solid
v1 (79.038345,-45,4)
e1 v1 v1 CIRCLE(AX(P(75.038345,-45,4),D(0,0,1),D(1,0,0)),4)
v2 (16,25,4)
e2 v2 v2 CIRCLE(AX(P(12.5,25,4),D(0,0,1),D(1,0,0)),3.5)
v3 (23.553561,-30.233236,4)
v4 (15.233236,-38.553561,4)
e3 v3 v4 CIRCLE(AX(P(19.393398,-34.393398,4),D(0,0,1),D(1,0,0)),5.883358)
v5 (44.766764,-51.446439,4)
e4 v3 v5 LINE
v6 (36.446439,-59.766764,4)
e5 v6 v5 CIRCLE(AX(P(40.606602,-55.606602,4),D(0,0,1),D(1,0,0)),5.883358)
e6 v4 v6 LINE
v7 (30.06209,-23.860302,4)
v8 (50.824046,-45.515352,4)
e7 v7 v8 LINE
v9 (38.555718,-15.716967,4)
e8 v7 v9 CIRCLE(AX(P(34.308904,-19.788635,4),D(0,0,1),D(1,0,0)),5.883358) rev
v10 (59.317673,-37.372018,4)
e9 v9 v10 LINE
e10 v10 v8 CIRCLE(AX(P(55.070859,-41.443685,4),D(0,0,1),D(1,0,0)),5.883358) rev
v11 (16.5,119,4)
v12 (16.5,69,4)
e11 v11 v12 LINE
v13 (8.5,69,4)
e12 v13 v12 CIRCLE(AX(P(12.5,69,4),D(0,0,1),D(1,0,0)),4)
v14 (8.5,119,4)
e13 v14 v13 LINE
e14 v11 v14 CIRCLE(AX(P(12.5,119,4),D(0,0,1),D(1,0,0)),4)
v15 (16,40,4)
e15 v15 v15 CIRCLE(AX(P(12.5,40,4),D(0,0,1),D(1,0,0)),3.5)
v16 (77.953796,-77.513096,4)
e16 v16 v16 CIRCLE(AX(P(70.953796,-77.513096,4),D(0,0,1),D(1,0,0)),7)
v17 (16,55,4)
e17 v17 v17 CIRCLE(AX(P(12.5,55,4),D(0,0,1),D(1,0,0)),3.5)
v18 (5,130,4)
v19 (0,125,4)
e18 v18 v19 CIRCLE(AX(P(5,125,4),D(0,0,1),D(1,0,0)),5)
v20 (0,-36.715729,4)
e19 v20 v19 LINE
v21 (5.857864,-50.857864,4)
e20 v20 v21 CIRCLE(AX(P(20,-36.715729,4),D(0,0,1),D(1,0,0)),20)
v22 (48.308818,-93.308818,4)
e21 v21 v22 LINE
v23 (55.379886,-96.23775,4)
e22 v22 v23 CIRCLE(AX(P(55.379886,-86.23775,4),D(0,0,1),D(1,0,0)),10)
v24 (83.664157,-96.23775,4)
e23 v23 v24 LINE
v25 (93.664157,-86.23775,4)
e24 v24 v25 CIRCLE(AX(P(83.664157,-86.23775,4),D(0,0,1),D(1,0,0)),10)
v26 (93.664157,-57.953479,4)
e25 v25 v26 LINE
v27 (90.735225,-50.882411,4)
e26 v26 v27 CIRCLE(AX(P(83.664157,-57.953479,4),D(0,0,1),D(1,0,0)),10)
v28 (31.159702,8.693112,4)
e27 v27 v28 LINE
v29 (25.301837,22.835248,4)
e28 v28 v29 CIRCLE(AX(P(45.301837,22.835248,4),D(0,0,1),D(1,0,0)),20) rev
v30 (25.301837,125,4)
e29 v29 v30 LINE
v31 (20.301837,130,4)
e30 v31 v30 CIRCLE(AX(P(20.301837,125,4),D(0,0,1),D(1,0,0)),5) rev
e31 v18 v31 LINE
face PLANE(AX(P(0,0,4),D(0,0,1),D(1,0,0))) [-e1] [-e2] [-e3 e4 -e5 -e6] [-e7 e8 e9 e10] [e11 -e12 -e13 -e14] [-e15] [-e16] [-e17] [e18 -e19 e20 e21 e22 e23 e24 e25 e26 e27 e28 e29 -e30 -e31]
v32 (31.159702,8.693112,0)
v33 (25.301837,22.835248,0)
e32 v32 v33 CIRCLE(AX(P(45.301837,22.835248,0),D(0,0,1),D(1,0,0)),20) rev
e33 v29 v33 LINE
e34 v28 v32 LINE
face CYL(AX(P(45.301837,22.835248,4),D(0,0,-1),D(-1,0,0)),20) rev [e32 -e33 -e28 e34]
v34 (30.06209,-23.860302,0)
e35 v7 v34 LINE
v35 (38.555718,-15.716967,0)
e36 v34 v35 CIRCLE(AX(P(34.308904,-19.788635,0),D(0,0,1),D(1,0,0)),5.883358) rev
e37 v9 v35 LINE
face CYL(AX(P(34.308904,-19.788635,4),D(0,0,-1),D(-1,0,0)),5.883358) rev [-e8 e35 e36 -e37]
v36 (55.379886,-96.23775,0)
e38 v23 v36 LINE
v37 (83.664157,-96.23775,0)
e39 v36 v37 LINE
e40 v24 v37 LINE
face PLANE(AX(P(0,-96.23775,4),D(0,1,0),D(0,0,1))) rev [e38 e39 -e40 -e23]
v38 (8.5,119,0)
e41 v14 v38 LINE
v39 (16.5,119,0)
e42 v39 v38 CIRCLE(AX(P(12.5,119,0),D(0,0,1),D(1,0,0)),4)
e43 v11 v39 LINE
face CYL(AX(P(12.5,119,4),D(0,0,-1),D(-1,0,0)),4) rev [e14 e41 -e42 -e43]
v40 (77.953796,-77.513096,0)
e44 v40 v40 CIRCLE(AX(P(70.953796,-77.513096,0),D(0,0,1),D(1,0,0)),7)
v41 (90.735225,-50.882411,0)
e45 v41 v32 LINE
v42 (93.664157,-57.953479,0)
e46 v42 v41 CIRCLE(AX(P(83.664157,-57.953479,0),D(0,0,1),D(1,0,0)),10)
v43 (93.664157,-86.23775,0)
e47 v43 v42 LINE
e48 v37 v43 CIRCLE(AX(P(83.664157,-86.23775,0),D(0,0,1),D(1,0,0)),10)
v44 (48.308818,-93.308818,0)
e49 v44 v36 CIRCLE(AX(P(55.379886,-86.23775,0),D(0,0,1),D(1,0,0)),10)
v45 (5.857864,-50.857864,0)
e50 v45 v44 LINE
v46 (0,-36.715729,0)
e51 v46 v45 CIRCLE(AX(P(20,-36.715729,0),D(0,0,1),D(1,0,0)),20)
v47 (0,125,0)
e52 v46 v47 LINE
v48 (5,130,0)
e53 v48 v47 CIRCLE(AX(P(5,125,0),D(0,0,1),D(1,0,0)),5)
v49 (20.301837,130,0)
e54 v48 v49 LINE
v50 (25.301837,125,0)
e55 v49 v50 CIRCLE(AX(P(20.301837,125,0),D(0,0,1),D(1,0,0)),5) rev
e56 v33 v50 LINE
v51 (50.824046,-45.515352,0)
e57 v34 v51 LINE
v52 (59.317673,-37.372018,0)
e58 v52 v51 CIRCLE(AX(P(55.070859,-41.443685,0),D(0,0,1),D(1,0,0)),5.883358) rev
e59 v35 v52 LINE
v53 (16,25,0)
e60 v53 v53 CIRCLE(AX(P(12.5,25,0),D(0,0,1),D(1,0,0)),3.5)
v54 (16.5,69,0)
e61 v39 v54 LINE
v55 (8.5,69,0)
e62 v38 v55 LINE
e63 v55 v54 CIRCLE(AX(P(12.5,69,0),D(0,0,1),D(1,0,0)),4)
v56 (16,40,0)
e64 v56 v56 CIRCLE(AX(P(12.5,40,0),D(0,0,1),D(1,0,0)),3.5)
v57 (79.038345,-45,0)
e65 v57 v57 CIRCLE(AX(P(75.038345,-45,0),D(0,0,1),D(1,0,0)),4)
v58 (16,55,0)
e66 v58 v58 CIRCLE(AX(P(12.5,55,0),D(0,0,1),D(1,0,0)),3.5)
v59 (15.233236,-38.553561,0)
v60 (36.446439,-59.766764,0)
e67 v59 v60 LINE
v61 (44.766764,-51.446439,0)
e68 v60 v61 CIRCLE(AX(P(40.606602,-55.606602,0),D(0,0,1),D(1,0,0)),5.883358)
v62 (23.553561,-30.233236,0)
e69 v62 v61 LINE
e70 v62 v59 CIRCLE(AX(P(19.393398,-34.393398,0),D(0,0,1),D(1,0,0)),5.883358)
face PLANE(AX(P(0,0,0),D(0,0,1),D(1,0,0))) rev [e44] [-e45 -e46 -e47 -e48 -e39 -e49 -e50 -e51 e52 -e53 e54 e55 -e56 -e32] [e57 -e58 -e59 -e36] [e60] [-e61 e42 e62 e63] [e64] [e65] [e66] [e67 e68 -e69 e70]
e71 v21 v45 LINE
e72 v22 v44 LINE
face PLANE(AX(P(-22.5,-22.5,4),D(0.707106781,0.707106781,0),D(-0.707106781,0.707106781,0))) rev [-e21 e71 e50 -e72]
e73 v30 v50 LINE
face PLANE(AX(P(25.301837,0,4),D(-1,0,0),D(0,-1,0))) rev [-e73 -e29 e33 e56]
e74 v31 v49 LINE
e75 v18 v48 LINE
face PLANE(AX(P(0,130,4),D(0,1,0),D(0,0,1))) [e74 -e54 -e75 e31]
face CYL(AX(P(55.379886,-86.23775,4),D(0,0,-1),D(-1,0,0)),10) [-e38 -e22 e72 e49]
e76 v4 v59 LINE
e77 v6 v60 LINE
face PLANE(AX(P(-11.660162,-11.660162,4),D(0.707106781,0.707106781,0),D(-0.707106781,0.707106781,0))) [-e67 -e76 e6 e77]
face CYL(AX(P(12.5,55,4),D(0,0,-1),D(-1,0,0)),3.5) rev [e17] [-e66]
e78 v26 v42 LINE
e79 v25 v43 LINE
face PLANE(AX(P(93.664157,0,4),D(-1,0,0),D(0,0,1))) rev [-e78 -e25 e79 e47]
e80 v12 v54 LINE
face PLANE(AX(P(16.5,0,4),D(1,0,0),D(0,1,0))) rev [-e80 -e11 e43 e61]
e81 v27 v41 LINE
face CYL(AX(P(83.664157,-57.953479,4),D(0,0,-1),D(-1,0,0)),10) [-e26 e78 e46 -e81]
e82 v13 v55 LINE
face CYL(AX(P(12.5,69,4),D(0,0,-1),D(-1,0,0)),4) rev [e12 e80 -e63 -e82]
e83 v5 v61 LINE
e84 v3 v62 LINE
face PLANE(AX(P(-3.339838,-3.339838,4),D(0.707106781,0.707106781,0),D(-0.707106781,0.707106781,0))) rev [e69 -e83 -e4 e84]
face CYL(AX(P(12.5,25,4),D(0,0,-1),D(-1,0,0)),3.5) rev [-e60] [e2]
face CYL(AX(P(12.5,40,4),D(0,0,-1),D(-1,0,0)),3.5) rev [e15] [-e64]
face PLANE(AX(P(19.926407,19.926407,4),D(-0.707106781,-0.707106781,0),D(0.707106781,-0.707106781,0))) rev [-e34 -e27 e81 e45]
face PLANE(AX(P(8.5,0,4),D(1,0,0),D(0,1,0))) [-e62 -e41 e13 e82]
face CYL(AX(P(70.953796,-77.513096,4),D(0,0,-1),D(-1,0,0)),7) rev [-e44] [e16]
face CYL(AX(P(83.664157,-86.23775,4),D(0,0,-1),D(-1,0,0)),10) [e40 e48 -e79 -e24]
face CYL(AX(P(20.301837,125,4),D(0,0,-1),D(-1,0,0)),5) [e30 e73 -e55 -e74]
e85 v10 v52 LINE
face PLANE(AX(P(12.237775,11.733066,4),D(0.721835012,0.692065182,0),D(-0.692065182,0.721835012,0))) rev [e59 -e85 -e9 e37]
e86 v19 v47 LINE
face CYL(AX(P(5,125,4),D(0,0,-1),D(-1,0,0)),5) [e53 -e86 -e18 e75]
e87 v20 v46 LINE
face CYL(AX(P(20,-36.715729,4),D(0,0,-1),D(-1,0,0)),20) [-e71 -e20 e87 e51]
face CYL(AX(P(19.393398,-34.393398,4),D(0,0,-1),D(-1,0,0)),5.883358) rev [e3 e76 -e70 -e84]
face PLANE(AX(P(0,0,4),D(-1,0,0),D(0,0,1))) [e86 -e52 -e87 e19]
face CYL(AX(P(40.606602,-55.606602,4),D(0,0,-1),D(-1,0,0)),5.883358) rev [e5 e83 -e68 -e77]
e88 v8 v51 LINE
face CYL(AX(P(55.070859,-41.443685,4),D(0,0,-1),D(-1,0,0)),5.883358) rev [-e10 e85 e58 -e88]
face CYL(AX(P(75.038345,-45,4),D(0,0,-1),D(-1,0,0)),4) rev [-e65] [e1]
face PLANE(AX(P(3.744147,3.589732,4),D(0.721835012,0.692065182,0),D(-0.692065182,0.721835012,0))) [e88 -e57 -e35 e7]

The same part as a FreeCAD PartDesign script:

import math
import FreeCAD as App
import Part
import Sketcher

V = App.Vector
Q = App.Units.Quantity

doc = App.newDocument("Part")
body = doc.addObject("PartDesign::Body", "Body")

sketch1 = body.newObject("Sketcher::SketchObject", "Sketch")
sketch1.AttachmentSupport = (doc.getObject("XY_Plane"), [""])
sketch1.MapMode = "FlatFace"
sketch1.addGeometry([
    Part.LineSegment(V(55.4, -96.2, 0), V(83.7, -96.2, 0)),
    Part.ArcOfCircle(Part.Circle(V(83.7, -86.2, 0), V(0, 0, 1), 10), math.radians(-90), math.radians(0)),
    Part.LineSegment(V(93.7, -86.2, 0), V(93.7, -58, 0)),
    Part.ArcOfCircle(Part.Circle(V(83.7, -58, 0), V(0, 0, 1), 10), math.radians(0), math.radians(45)),
    Part.LineSegment(V(90.7, -50.9, 0), V(31.2, 8.7, 0)),
    Part.ArcOfCircle(Part.Circle(V(45.3, 22.8, 0), V(0, 0, 1), 20), math.radians(-180), math.radians(-135)),
    Part.LineSegment(V(25.3, 22.8, 0), V(25.3, 125, 0)),
    Part.ArcOfCircle(Part.Circle(V(20.3, 125, 0), V(0, 0, 1), 5), math.radians(0), math.radians(90)),
    Part.LineSegment(V(20.3, 130, 0), V(5, 130, 0)),
    Part.ArcOfCircle(Part.Circle(V(5, 125, 0), V(0, 0, 1), 5), math.radians(90), math.radians(180)),
    Part.LineSegment(V(0, 125, 0), V(0, -36.7, 0)),
    Part.ArcOfCircle(Part.Circle(V(20, -36.7, 0), V(0, 0, 1), 20), math.radians(-180), math.radians(-135)),
    Part.LineSegment(V(5.9, -50.9, 0), V(48.3, -93.3, 0)),
    Part.ArcOfCircle(Part.Circle(V(55.4, -86.2, 0), V(0, 0, 1), 10), math.radians(-135), math.radians(-90)),
    Part.ArcOfCircle(Part.Circle(V(40.6, -55.6, 0), V(0, 0, 1), 5.9), math.radians(-135), math.radians(45)),
    Part.LineSegment(V(36.4, -59.8, 0), V(15.2, -38.6, 0)),
    Part.ArcOfCircle(Part.Circle(V(19.4, -34.4, 0), V(0, 0, 1), 5.9), math.radians(45), math.radians(225)),
    Part.LineSegment(V(23.6, -30.2, 0), V(44.8, -51.4, 0)),
    Part.Circle(V(71, -77.5, 0), V(0, 0, 1), 7),
    Part.Circle(V(75, -45, 0), V(0, 0, 1), 4),
    Part.ArcOfCircle(Part.Circle(V(34.3, -19.8, 0), V(0, 0, 1), 5.9), math.radians(44), math.radians(224)),
    Part.LineSegment(V(38.6, -15.7, 0), V(59.3, -37.4, 0)),
    Part.ArcOfCircle(Part.Circle(V(55.1, -41.4, 0), V(0, 0, 1), 5.9), math.radians(-136), math.radians(44)),
    Part.LineSegment(V(50.8, -45.5, 0), V(30.1, -23.9, 0)),
    Part.Circle(V(12.5, 25, 0), V(0, 0, 1), 3.5),
    Part.Circle(V(12.5, 40, 0), V(0, 0, 1), 3.5),
    Part.Circle(V(12.5, 55, 0), V(0, 0, 1), 3.5),
    Part.ArcOfCircle(Part.Circle(V(12.5, 69, 0), V(0, 0, 1), 4), math.radians(180), math.radians(360)),
    Part.LineSegment(V(8.5, 69, 0), V(8.5, 119, 0)),
    Part.ArcOfCircle(Part.Circle(V(12.5, 119, 0), V(0, 0, 1), 4), math.radians(0), math.radians(180)),
    Part.LineSegment(V(16.5, 119, 0), V(16.5, 69, 0)),
], False)
sketch1.addConstraint([
    Sketcher.Constraint("Tangent", 0, 2, 1, 1),
    Sketcher.Constraint("Tangent", 1, 2, 2, 1),
    Sketcher.Constraint("Tangent", 2, 2, 3, 1),
    Sketcher.Constraint("Tangent", 3, 2, 4, 1),
    Sketcher.Constraint("Tangent", 4, 2, 5, 2),
    Sketcher.Constraint("Tangent", 5, 1, 6, 1),
    Sketcher.Constraint("Tangent", 6, 2, 7, 1),
    Sketcher.Constraint("Tangent", 7, 2, 8, 1),
    Sketcher.Constraint("Tangent", 8, 2, 9, 1),
    Sketcher.Constraint("Tangent", 9, 2, 10, 1),
    Sketcher.Constraint("Tangent", 10, 2, 11, 1),
    Sketcher.Constraint("Tangent", 11, 2, 12, 1),
    Sketcher.Constraint("Tangent", 12, 2, 13, 1),
    Sketcher.Constraint("Tangent", 13, 2, 0, 1),
    Sketcher.Constraint("Tangent", 14, 1, 15, 1),
    Sketcher.Constraint("Tangent", 15, 2, 16, 2),
    Sketcher.Constraint("Tangent", 16, 1, 17, 1),
    Sketcher.Constraint("Tangent", 17, 2, 14, 2),
    Sketcher.Constraint("Tangent", 20, 1, 21, 1),
    Sketcher.Constraint("Tangent", 21, 2, 22, 2),
    Sketcher.Constraint("Tangent", 22, 1, 23, 1),
    Sketcher.Constraint("Tangent", 23, 2, 20, 2),
    Sketcher.Constraint("Tangent", 27, 1, 28, 1),
    Sketcher.Constraint("Tangent", 28, 2, 29, 2),
    Sketcher.Constraint("Tangent", 29, 1, 30, 1),
    Sketcher.Constraint("Tangent", 30, 2, 27, 2),
    Sketcher.Constraint("Horizontal", 0),
    Sketcher.Constraint("Vertical", 2),
    Sketcher.Constraint("Vertical", 6),
    Sketcher.Constraint("Horizontal", 8),
    Sketcher.Constraint("Vertical", 10),
    Sketcher.Constraint("Vertical", 28),
    Sketcher.Constraint("Vertical", 30),
    Sketcher.Constraint("Equal", 1, 3),
    Sketcher.Constraint("Equal", 7, 9),
    Sketcher.Constraint("Equal", 5, 11),
    Sketcher.Constraint("Equal", 3, 13),
    Sketcher.Constraint("Equal", 14, 16),
    Sketcher.Constraint("Equal", 16, 20),
    Sketcher.Constraint("Equal", 20, 22),
    Sketcher.Constraint("Equal", 24, 25),
    Sketcher.Constraint("Equal", 25, 26),
    Sketcher.Constraint("Equal", 19, 27),
    Sketcher.Constraint("PointOnObject", 9, 2, -2),
    Sketcher.Constraint("Parallel", 4, 12),
    Sketcher.Constraint("Parallel", 12, 15),
    Sketcher.Constraint("Vertical", 24, 3, 25, 3),
    Sketcher.Constraint("Vertical", 25, 3, 26, 3),
    Sketcher.Constraint("Vertical", 26, 3, 27, 3),
    Sketcher.Constraint("Equal", 0, 2),
    Sketcher.Constraint("Equal", 17, 21),
    Sketcher.Constraint("Diameter", 18, 14.0),
    Sketcher.Constraint("Diameter", 19, 8.0),
    Sketcher.Constraint("Diameter", 24, 7.0),
    Sketcher.Constraint("Radius", 1, 10.0),
    Sketcher.Constraint("Radius", 5, 20.0),
    Sketcher.Constraint("Radius", 7, 5.0),
    Sketcher.Constraint("DistanceY", 28, 1, 28, 2, 50.0),
    Sketcher.Constraint("Angle", 4, Q("135 deg")),
    Sketcher.Constraint("Distance", 15, 30.0),
    Sketcher.Constraint("DistanceY", -1, 1, 7, 3, 125.0),
    Sketcher.Constraint("DistanceY", 19, 3, -1, 1, 45.0),
    Sketcher.Constraint("DistanceY", -1, 1, 24, 3, 25.0),
    Sketcher.Constraint("DistanceY", -1, 1, 25, 3, 40.0),
    Sketcher.Constraint("DistanceY", -1, 1, 26, 3, 55.0),
    Sketcher.Constraint("DistanceY", -1, 1, 27, 3, 69.0),
    Sketcher.Constraint("DistanceX", -1, 1, 24, 3, 12.5),
    Sketcher.Constraint("Radius", 14, 5.883358),
    Sketcher.Constraint("DistanceX", 0, 1, 0, 2, 28.284271),
    Sketcher.Constraint("DistanceY", 10, 2, 10, 1, 161.715729),
    Sketcher.Constraint("DistanceX", -1, 1, 14, 3, 40.606602),
    Sketcher.Constraint("DistanceY", 14, 3, -1, 1, 55.606602),
    Sketcher.Constraint("DistanceX", -1, 1, 4, 2, 31.159702),
    Sketcher.Constraint("DistanceY", 23, 2, -1, 1, 23.860302),
    Sketcher.Constraint("DistanceY", 16, 1, 20, 3, 10.444601),
    Sketcher.Constraint("DistanceY", 1, 3, -1, 1, 86.23775),
    Sketcher.Constraint("DistanceX", -1, 1, 22, 3, 55.070859),
    Sketcher.Constraint("DistanceX", 18, 3, 1, 3, 12.710361),
    Sketcher.Constraint("DistanceX", 19, 3, 3, 3, 8.625812),
    Sketcher.Constraint("DistanceY", 18, 3, -1, 1, 77.513096),
])
pad1 = body.newObject("PartDesign::Pad", "Pad")
pad1.Profile = sketch1
pad1.Length = 4

doc.recompute()
